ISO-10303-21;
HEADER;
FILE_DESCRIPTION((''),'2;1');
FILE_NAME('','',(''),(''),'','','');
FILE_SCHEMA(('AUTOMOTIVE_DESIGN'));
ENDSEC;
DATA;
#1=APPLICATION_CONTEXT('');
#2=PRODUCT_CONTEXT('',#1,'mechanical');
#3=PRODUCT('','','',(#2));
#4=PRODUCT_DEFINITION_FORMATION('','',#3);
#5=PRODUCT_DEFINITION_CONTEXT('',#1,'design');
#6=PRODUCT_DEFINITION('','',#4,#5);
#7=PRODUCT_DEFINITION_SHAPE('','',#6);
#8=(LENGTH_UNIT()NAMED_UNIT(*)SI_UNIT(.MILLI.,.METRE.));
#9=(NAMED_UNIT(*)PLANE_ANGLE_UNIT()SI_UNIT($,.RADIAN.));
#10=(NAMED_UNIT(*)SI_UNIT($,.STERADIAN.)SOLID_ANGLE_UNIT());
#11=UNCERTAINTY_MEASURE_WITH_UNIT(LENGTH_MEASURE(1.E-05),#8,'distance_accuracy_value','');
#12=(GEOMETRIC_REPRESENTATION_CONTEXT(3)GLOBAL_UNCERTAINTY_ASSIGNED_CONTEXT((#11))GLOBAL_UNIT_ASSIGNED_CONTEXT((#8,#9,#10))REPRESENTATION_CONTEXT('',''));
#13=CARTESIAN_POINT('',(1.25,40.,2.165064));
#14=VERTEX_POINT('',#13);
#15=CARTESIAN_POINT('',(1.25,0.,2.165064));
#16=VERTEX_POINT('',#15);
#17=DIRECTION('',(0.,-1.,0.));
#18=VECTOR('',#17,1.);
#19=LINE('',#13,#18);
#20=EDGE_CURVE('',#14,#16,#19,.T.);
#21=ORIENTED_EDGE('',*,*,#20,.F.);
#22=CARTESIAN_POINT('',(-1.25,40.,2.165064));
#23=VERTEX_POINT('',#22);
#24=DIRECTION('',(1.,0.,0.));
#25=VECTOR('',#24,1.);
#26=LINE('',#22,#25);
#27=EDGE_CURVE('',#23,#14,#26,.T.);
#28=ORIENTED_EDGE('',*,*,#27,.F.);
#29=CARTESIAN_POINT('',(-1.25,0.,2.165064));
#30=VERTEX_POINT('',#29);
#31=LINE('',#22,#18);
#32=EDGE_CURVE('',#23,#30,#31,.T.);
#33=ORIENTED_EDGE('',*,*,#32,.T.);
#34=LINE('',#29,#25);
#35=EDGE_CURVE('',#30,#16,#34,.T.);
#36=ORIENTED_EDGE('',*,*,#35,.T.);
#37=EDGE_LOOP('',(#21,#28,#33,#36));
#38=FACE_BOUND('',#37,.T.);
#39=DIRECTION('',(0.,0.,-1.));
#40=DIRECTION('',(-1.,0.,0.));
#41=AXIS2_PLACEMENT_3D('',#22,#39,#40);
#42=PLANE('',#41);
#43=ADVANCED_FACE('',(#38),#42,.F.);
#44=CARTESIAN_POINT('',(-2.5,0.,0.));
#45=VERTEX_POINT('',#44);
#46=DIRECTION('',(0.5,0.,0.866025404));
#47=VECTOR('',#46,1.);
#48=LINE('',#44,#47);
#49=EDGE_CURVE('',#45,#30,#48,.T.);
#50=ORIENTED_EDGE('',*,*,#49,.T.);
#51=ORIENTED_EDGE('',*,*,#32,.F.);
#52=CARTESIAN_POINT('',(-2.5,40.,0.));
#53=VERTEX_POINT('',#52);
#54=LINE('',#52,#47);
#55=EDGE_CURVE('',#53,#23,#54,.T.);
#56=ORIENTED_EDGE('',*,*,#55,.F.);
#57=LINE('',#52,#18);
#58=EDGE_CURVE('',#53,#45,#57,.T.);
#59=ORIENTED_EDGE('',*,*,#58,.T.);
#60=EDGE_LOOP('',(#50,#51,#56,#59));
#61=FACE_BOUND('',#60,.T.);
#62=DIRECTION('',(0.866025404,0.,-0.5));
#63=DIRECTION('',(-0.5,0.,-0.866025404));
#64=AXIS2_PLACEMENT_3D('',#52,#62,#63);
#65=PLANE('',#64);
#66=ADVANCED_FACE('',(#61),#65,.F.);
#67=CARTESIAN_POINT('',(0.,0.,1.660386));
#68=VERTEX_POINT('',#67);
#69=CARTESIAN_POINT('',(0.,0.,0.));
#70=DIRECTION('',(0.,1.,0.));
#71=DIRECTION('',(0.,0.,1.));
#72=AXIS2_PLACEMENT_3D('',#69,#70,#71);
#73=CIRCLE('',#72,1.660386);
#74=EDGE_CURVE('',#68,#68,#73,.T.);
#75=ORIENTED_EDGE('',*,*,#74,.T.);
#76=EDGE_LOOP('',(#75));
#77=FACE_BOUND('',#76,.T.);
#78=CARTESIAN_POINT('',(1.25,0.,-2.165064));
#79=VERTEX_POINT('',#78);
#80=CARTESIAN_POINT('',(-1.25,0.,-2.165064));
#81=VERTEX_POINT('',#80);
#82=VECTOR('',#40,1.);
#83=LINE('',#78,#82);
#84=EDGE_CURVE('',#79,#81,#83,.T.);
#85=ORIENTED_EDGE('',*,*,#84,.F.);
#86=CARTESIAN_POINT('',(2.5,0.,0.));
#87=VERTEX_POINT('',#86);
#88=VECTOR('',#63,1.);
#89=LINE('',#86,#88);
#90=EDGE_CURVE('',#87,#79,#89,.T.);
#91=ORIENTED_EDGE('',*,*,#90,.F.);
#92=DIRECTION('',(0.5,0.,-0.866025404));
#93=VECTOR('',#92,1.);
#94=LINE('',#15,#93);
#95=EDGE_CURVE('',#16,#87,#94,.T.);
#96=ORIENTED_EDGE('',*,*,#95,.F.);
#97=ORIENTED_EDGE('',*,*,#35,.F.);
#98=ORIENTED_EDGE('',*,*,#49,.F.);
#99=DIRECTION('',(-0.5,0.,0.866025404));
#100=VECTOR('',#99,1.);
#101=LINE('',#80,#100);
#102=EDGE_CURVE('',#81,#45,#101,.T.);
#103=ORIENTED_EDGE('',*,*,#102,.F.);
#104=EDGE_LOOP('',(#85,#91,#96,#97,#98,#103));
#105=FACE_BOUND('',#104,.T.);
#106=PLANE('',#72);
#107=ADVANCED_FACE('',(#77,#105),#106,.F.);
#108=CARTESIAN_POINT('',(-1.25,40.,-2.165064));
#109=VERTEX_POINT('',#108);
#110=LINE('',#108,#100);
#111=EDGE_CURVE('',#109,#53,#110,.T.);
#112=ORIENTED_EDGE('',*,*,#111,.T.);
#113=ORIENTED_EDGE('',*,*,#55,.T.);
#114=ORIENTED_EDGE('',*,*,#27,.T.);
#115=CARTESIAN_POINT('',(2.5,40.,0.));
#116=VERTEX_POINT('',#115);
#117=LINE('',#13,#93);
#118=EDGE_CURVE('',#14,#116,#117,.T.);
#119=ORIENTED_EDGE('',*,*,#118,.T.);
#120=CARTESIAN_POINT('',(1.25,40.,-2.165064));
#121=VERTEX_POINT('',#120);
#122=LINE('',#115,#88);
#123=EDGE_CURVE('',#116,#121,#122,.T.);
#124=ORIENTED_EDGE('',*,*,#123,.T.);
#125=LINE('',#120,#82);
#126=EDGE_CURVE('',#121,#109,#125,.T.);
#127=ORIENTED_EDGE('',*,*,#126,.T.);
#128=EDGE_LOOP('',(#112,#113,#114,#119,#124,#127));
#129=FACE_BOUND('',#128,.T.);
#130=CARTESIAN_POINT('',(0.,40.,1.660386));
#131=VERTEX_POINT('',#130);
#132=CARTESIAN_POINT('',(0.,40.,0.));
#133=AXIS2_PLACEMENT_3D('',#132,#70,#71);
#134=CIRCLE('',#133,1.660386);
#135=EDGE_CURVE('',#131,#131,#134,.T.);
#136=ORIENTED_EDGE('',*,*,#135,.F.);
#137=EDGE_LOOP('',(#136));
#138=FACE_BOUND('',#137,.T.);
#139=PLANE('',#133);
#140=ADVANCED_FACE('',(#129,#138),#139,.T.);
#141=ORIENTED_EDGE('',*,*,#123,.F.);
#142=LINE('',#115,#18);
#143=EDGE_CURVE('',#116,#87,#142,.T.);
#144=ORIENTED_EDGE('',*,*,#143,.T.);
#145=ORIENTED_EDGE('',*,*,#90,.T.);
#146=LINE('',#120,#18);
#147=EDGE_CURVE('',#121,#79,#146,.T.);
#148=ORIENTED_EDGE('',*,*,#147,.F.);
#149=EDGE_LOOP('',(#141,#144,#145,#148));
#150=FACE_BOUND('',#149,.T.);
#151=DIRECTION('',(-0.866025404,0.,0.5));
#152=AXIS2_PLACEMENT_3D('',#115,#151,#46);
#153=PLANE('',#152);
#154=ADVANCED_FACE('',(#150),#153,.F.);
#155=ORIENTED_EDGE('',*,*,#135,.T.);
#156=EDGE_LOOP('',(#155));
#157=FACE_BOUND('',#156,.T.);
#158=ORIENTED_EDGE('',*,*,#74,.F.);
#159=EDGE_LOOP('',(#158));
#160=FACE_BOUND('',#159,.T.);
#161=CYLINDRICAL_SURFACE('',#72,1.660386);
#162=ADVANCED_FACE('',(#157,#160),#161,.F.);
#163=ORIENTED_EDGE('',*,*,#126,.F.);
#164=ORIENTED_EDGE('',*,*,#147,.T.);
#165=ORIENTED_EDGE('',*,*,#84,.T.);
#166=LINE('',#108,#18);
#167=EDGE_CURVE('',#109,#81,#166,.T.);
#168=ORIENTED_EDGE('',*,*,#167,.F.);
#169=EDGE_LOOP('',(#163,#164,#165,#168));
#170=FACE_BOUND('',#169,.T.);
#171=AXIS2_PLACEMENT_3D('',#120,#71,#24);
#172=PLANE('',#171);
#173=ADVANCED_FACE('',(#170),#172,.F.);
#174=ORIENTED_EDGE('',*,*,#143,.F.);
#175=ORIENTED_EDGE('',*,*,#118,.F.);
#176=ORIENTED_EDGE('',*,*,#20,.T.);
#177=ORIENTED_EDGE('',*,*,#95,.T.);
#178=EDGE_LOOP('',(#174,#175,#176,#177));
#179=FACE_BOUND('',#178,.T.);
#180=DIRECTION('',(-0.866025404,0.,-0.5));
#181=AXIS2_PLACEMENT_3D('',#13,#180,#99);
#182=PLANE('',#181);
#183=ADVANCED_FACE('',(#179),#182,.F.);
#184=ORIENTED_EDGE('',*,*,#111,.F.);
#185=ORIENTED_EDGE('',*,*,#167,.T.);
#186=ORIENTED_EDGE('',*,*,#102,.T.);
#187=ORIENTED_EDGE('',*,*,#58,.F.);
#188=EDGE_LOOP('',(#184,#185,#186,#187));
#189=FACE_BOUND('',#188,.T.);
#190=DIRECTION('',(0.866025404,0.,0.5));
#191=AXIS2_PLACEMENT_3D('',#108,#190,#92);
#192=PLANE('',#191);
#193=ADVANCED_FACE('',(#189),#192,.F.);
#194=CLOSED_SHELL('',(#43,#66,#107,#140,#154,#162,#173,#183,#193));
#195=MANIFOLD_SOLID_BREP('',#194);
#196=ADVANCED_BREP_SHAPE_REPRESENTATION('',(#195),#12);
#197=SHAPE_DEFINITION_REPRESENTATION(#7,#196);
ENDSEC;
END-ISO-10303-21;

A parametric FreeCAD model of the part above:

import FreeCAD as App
import Part
import Sketcher
from FreeCAD import Vector
Q = App.Units.Quantity

doc = App.newDocument("Part")
body = doc.addObject("PartDesign::Body", "Body")

sketch1 = body.newObject("Sketcher::SketchObject", "Sketch")
sketch1.AttachmentSupport = (doc.getObject("XZ_Plane"), [""])
sketch1.MapMode = "FlatFace"
sketch1.addGeometry(Part.LineSegment(Vector(2.5, 0, 0), Vector(1.2, -2.2, 0)), False)
sketch1.addGeometry(Part.LineSegment(Vector(1.2, -2.2, 0), Vector(-1.2, -2.2, 0)), False)
sketch1.addGeometry(Part.LineSegment(Vector(-1.2, -2.2, 0), Vector(-2.5, 0, 0)), False)
sketch1.addGeometry(Part.LineSegment(Vector(-2.5, 0, 0), Vector(-1.2, 2.2, 0)), False)
sketch1.addGeometry(Part.LineSegment(Vector(-1.2, 2.2, 0), Vector(1.2, 2.2, 0)), False)
sketch1.addGeometry(Part.LineSegment(Vector(1.2, 2.2, 0), Vector(2.5, 0, 0)), False)
sketch1.addConstraint(Sketcher.Constraint("Coincident", 0, 2, 1, 1))
sketch1.addConstraint(Sketcher.Constraint("Coincident", 1, 2, 2, 1))
sketch1.addConstraint(Sketcher.Constraint("Coincident", 2, 2, 3, 1))
sketch1.addConstraint(Sketcher.Constraint("Coincident", 3, 2, 4, 1))
sketch1.addConstraint(Sketcher.Constraint("Coincident", 4, 2, 5, 1))
sketch1.addConstraint(Sketcher.Constraint("Coincident", 5, 2, 0, 1))
sketch1.addConstraint(Sketcher.Constraint("Horizontal", 1))
sketch1.addConstraint(Sketcher.Constraint("Horizontal", 4))
sketch1.addConstraint(Sketcher.Constraint("Symmetric", 0, 2, 3, 2, -1, 1))
sketch1.addConstraint(Sketcher.Constraint("Symmetric", 2, 2, 5, 2, -1, 1))
sketch1.addConstraint(Sketcher.Constraint("PointOnObject", 2, 2, -1))
sketch1.addConstraint(Sketcher.Constraint("Parallel", 2, 5))
sketch1.addConstraint(Sketcher.Constraint("Vertical", 1, 2, 3, 2))
sketch1.addConstraint(Sketcher.Constraint("Angle", 0, Q("-120 deg")))
sketch1.addConstraint(Sketcher.Constraint("DistanceX", 1, 2, 1, 1, Q("2.5 mm")))
sketch1.addConstraint(Sketcher.Constraint("DistanceX", 2, 2, 5, 2, Q("5 mm")))
pad1 = body.newObject("PartDesign::Pad", "Pad")
pad1.Profile = sketch1
pad1.Length = 40
pad1.Reversed = True

sketch2 = body.newObject("Sketcher::SketchObject", "Sketch001")
sketch2.AttachmentSupport = (doc.getObject("XZ_Plane"), [""])
sketch2.MapMode = "FlatFace"
sketch2.AttachmentOffset = App.Placement(Vector(0, 0, -40), App.Rotation())
sketch2.addGeometry(Part.Circle(Vector(0, 0, 0), Vector(0, 0, 1), 1.7), False)
sketch2.addConstraint(Sketcher.Constraint("Coincident", 0, 3, -1, 1))
sketch2.addConstraint(Sketcher.Constraint("Diameter", 0, Q("3.320772 mm")))
pocket1 = body.newObject("PartDesign::Pocket", "Pocket")
pocket1.Profile = sketch2
pocket1.Type = "ThroughAll"
pocket1.Reversed = True

doc.recompute()
